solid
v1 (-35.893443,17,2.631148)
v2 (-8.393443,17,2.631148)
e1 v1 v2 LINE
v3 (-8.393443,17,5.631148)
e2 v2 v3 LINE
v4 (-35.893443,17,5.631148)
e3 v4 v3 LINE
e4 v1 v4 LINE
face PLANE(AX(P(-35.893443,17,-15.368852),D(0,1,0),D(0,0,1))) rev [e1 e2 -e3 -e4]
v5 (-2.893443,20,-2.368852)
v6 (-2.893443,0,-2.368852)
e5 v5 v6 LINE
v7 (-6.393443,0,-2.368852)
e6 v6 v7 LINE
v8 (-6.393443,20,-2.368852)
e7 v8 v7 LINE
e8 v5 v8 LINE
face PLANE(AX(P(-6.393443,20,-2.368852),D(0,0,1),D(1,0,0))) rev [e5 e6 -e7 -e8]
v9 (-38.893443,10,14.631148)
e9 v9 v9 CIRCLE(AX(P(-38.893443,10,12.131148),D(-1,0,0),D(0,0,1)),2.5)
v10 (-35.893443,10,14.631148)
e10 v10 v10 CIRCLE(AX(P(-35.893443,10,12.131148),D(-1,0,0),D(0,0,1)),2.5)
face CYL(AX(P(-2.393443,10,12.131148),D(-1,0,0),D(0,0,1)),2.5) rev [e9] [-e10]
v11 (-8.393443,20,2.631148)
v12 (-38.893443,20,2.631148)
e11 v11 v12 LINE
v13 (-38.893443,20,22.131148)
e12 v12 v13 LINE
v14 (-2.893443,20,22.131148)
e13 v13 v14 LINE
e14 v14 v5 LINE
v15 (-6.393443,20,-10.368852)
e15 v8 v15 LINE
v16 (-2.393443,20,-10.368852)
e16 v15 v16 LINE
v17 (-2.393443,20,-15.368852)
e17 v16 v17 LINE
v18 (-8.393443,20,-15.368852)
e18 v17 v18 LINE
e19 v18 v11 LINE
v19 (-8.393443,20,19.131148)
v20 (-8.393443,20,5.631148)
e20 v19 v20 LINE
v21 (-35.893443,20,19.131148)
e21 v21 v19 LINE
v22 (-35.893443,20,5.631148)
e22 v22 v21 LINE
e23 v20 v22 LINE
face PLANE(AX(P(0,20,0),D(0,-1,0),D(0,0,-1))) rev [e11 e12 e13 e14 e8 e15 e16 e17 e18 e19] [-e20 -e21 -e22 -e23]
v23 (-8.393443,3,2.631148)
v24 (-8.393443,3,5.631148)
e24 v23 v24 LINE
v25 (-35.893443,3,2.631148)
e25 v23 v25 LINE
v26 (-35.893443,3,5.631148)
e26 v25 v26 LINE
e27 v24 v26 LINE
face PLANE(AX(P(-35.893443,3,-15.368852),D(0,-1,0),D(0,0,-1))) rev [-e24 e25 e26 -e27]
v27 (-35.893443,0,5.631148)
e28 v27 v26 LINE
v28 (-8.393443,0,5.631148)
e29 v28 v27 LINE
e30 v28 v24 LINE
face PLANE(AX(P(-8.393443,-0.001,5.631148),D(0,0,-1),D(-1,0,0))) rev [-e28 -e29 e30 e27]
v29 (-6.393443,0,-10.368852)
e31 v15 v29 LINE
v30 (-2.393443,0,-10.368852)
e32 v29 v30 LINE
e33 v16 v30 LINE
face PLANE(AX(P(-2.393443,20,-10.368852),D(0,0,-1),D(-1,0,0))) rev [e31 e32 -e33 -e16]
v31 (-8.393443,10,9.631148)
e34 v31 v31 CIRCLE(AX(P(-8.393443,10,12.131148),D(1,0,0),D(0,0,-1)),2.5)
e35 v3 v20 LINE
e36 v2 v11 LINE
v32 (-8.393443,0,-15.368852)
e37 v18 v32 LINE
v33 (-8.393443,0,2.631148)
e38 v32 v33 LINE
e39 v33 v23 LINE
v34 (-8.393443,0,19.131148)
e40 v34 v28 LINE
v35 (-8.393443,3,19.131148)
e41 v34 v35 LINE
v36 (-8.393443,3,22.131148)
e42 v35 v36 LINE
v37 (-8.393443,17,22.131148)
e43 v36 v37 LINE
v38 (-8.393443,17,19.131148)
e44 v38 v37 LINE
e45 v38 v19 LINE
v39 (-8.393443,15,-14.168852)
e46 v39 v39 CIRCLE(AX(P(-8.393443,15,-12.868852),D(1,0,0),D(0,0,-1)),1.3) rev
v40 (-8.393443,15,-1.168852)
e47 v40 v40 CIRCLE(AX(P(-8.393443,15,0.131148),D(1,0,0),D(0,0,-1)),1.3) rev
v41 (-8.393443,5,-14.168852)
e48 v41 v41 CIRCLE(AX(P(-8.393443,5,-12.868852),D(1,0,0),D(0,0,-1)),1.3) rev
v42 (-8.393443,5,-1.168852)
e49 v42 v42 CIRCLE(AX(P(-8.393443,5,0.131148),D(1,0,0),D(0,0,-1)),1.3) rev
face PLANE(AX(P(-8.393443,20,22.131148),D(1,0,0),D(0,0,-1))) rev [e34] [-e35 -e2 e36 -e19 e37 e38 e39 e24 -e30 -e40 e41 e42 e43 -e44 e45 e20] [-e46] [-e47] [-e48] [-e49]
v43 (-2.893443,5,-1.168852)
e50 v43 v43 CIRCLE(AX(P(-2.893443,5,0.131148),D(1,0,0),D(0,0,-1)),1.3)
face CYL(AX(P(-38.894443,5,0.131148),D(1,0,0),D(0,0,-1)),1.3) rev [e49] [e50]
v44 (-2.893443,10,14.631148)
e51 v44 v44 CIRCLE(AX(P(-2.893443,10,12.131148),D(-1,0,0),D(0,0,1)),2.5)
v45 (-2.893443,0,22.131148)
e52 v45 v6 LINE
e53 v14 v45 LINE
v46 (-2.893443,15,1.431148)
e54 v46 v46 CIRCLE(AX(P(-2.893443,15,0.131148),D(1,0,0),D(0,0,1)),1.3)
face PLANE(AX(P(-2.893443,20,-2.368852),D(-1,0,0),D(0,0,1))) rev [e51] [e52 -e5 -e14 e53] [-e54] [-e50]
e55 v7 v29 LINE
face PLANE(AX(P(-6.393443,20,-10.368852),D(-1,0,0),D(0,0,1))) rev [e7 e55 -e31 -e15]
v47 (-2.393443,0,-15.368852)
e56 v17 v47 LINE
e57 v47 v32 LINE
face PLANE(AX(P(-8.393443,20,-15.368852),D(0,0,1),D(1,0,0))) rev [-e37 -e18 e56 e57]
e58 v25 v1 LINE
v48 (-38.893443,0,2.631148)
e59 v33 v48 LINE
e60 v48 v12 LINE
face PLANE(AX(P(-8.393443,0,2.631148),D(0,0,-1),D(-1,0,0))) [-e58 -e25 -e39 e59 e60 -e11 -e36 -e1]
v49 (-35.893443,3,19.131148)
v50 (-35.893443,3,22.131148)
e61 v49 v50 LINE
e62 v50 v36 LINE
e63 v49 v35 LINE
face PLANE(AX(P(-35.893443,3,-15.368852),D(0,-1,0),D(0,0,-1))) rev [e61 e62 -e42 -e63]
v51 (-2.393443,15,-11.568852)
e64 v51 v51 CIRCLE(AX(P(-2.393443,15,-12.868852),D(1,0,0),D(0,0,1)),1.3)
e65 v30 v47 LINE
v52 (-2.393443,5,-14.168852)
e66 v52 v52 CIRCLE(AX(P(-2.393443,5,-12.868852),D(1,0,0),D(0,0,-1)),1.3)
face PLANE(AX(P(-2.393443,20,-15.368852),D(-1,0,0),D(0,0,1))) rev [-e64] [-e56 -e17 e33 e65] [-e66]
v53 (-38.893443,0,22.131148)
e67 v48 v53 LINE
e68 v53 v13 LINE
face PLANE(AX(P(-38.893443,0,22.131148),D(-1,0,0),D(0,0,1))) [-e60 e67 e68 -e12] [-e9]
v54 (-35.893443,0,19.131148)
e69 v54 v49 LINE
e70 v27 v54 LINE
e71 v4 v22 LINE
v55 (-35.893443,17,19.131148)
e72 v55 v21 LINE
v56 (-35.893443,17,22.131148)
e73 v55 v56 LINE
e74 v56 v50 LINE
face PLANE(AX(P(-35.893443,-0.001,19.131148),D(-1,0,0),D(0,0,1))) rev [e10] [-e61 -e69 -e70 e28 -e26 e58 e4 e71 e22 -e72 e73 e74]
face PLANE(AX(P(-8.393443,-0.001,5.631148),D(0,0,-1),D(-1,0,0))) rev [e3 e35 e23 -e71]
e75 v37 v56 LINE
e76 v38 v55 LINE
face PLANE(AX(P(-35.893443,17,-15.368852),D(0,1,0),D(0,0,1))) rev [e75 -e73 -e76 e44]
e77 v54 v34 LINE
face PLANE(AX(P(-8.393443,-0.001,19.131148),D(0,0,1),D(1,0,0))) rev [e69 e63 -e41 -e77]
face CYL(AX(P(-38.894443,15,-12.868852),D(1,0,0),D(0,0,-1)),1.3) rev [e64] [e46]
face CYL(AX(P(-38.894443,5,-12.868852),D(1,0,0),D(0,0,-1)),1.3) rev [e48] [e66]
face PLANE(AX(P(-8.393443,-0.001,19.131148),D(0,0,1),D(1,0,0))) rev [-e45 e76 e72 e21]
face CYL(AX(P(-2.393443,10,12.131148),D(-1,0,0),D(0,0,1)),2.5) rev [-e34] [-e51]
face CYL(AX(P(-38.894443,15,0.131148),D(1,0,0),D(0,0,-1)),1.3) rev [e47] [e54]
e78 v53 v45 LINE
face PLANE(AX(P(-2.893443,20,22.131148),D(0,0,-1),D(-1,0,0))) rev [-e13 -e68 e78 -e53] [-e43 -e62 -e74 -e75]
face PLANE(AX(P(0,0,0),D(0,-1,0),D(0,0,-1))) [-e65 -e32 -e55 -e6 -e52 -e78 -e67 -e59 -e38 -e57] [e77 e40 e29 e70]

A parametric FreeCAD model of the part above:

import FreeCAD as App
import Part
import Sketcher

V = App.Vector

doc = App.newDocument("Part")
body = doc.addObject("PartDesign::Body", "Body")

# Sketch on XZ plane
sketch1 = body.newObject("Sketcher::SketchObject", "Sketch")
sketch1.AttachmentSupport = (doc.getObject("XZ_Plane"), [""])
sketch1.MapMode = "FlatFace"
sketch1.addGeometry(Part.LineSegment(V(-2.893443, 22.131148, 0), V(-2.893443, -2.368852, 0)), False)
sketch1.addGeometry(Part.LineSegment(V(-2.893443, -2.368852, 0), V(-6.393443, -2.368852, 0)), False)
sketch1.addGeometry(Part.LineSegment(V(-6.393443, -2.368852, 0), V(-6.393443, -10.368852, 0)), False)
sketch1.addGeometry(Part.LineSegment(V(-6.393443, -10.368852, 0), V(-2.393443, -10.368852, 0)), False)
sketch1.addGeometry(Part.LineSegment(V(-2.393443, -10.368852, 0), V(-2.393443, -15.368852, 0)), False)
sketch1.addGeometry(Part.LineSegment(V(-2.393443, -15.368852, 0), V(-8.393443, -15.368852, 0)), False)
sketch1.addGeometry(Part.LineSegment(V(-8.393443, -15.368852, 0), V(-8.393443, 22.131148, 0)), False)
sketch1.addGeometry(Part.LineSegment(V(-8.393443, 22.131148, 0), V(-2.893443, 22.131148, 0)), False)
sketch1.addConstraint(Sketcher.Constraint("Coincident", 0, 2, 1, 1))
sketch1.addConstraint(Sketcher.Constraint("Coincident", 1, 2, 2, 1))
sketch1.addConstraint(Sketcher.Constraint("Coincident", 2, 2, 3, 1))
sketch1.addConstraint(Sketcher.Constraint("Coincident", 3, 2, 4, 1))
sketch1.addConstraint(Sketcher.Constraint("Coincident", 4, 2, 5, 1))
sketch1.addConstraint(Sketcher.Constraint("Coincident", 5, 2, 6, 1))
sketch1.addConstraint(Sketcher.Constraint("Coincident", 6, 2, 7, 1))
sketch1.addConstraint(Sketcher.Constraint("Coincident", 7, 2, 0, 1))
sketch1.addConstraint(Sketcher.Constraint("Vertical", 0))
sketch1.addConstraint(Sketcher.Constraint("Horizontal", 1))
sketch1.addConstraint(Sketcher.Constraint("Vertical", 2))
sketch1.addConstraint(Sketcher.Constraint("Horizontal", 3))
sketch1.addConstraint(Sketcher.Constraint("Vertical", 4))
sketch1.addConstraint(Sketcher.Constraint("Horizontal", 5))
sketch1.addConstraint(Sketcher.Constraint("Vertical", 6))
sketch1.addConstraint(Sketcher.Constraint("Horizontal", 7))
sketch1.addConstraint(Sketcher.Constraint("DistanceX", 3, 1, 3, 2, 4.0))
sketch1.addConstraint(Sketcher.Constraint("DistanceX", 5, 2, 5, 1, 6.0))
sketch1.addConstraint(Sketcher.Constraint("DistanceY", 2, 2, 2, 1, 8.0))
sketch1.addConstraint(Sketcher.Constraint("DistanceY", 4, 2, 4, 1, 5.0))
sketch1.addConstraint(Sketcher.Constraint("DistanceX", 1, 2, 1, 1, 3.5))
sketch1.addConstraint(Sketcher.Constraint("DistanceY", 0, 2, 0, 1, 24.5))
sketch1.addConstraint(Sketcher.Constraint("DistanceX", 0, 2, -1, 1, 2.893443))
sketch1.addConstraint(Sketcher.Constraint("DistanceY", 0, 2, -1, 1, 2.368852))
pad1 = body.newObject("PartDesign::Pad", "Pad")
pad1.Profile = sketch1
pad1.Length = 20
pad1.Reversed = True

# Sketch on XZ plane
sketch2 = body.newObject("Sketcher::SketchObject", "Sketch001")
sketch2.AttachmentSupport = (doc.getObject("XZ_Plane"), [""])
sketch2.MapMode = "FlatFace"
sketch2.AttachmentOffset = App.Placement(V(0, 0, -20), App.Rotation())
sketch2.addGeometry(Part.LineSegment(V(-8.393443, 22.131148, 0), V(-8.393443, 2.631148, 0)), False)
sketch2.addGeometry(Part.LineSegment(V(-8.393443, 2.631148, 0), V(-38.893443, 2.631148, 0)), False)
sketch2.addGeometry(Part.LineSegment(V(-38.893443, 2.631148, 0), V(-38.893443, 22.131148, 0)), False)
sketch2.addGeometry(Part.LineSegment(V(-38.893443, 22.131148, 0), V(-8.393443, 22.131148, 0)), False)
sketch2.addConstraint(Sketcher.Constraint("Coincident", 0, 2, 1, 1))
sketch2.addConstraint(Sketcher.Constraint("Coincident", 1, 2, 2, 1))
sketch2.addConstraint(Sketcher.Constraint("Coincident", 2, 2, 3, 1))
sketch2.addConstraint(Sketcher.Constraint("Coincident", 3, 2, 0, 1))
sketch2.addConstraint(Sketcher.Constraint("Vertical", 0))
sketch2.addConstraint(Sketcher.Constraint("Horizontal", 1))
sketch2.addConstraint(Sketcher.Constraint("Vertical", 2))
sketch2.addConstraint(Sketcher.Constraint("Horizontal", 3))
sketch2.addConstraint(Sketcher.Constraint("DistanceX", 1, 2, 1, 1, 30.5))
sketch2.addConstraint(Sketcher.Constraint("DistanceY", 0, 2, 0, 1, 19.5))
sketch2.addConstraint(Sketcher.Constraint("DistanceX", 0, 2, -1, 1, 8.393443))
sketch2.addConstraint(Sketcher.Constraint("DistanceY", -1, 1, 0, 2, 2.631148))
pad2 = body.newObject("PartDesign::Pad", "Pad001")
pad2.Profile = sketch2
pad2.Length = 20

# Sketch on XZ plane
sketch3 = body.newObject("Sketcher::SketchObject", "Sketch002")
sketch3.AttachmentSupport = (doc.getObject("XZ_Plane"), [""])
sketch3.MapMode = "FlatFace"
sketch3.AttachmentOffset = App.Placement(V(0, 0, -20), App.Rotation())
sketch3.addGeometry(Part.LineSegment(V(-8.393443, 19.131148, 0), V(-8.393443, 5.631148, 0)), False)
sketch3.addGeometry(Part.LineSegment(V(-8.393443, 5.631148, 0), V(-35.893443, 5.631148, 0)), False)
sketch3.addGeometry(Part.LineSegment(V(-35.893443, 5.631148, 0), V(-35.893443, 19.131148, 0)), False)
sketch3.addGeometry(Part.LineSegment(V(-35.893443, 19.131148, 0), V(-8.393443, 19.131148, 0)), False)
sketch3.addConstraint(Sketcher.Constraint("Coincident", 0, 2, 1, 1))
sketch3.addConstraint(Sketcher.Constraint("Coincident", 1, 2, 2, 1))
sketch3.addConstraint(Sketcher.Constraint("Coincident", 2, 2, 3, 1))
sketch3.addConstraint(Sketcher.Constraint("Coincident", 3, 2, 0, 1))
sketch3.addConstraint(Sketcher.Constraint("Vertical", 0))
sketch3.addConstraint(Sketcher.Constraint("Horizontal", 1))
sketch3.addConstraint(Sketcher.Constraint("Vertical", 2))
sketch3.addConstraint(Sketcher.Constraint("Horizontal", 3))
sketch3.addConstraint(Sketcher.Constraint("DistanceX", 1, 2, 1, 1, 27.5))
sketch3.addConstraint(Sketcher.Constraint("DistanceY", 0, 2, 0, 1, 13.5))
sketch3.addConstraint(Sketcher.Constraint("DistanceX", 0, 2, -1, 1, 8.393443))
sketch3.addConstraint(Sketcher.Constraint("DistanceY", -1, 1, 0, 2, 5.631148))
pocket1 = body.newObject("PartDesign::Pocket", "Pocket")
pocket1.Profile = sketch3
pocket1.Type = "UpToFirst"
pocket1.Reversed = True

# Sketch on XY plane
sketch4 = body.newObject("Sketcher::SketchObject", "Sketch003")
sketch4.AttachmentSupport = (doc.getObject("XY_Plane"), [""])
sketch4.MapMode = "FlatFace"
sketch4.AttachmentOffset = App.Placement(V(0, 0, 22.131148), App.Rotation())
sketch4.addGeometry(Part.LineSegment(V(-35.893443, 17, 0), V(-35.893443, 3, 0)), False)
sketch4.addGeometry(Part.LineSegment(V(-35.893443, 3, 0), V(-8.393443, 3, 0)), False)
sketch4.addGeometry(Part.LineSegment(V(-8.393443, 3, 0), V(-8.393443, 17, 0)), False)
sketch4.addGeometry(Part.LineSegment(V(-8.393443, 17, 0), V(-35.893443, 17, 0)), False)
sketch4.addConstraint(Sketcher.Constraint("Coincident", 0, 2, 1, 1))
sketch4.addConstraint(Sketcher.Constraint("Coincident", 1, 2, 2, 1))
sketch4.addConstraint(Sketcher.Constraint("Coincident", 2, 2, 3, 1))
sketch4.addConstraint(Sketcher.Constraint("Coincident", 3, 2, 0, 1))
sketch4.addConstraint(Sketcher.Constraint("Vertical", 0))
sketch4.addConstraint(Sketcher.Constraint("Horizontal", 1))
sketch4.addConstraint(Sketcher.Constraint("Vertical", 2))
sketch4.addConstraint(Sketcher.Constraint("Horizontal", 3))
sketch4.addConstraint(Sketcher.Constraint("DistanceY", 0, 2, 0, 1, 14.0))
sketch4.addConstraint(Sketcher.Constraint("DistanceX", 1, 1, 1, 2, 27.5))
sketch4.addConstraint(Sketcher.Constraint("DistanceY", -1, 1, 0, 2, 3.0))
sketch4.addConstraint(Sketcher.Constraint("DistanceX", 0, 2, -1, 1, 35.893443))
pocket2 = body.newObject("PartDesign::Pocket", "Pocket001")
pocket2.Profile = sketch4
pocket2.Type = "ThroughAll"

# Sketch on YZ plane
sketch5 = body.newObject("Sketcher::SketchObject", "Sketch004")
sketch5.AttachmentSupport = (doc.getObject("YZ_Plane"), [""])
sketch5.MapMode = "FlatFace"
sketch5.AttachmentOffset = App.Placement(V(0, 0, -38.893443), App.Rotation())
sketch5.addGeometry(Part.Circle(V(10, 12.131148, 0), V(0, 0, 1), 2.5), False)
sketch5.addConstraint(Sketcher.Constraint("Diameter", 0, 5.0))
sketch5.addConstraint(Sketcher.Constraint("DistanceX", -1, 1, 0, 3, 10.0))
sketch5.addConstraint(Sketcher.Constraint("DistanceY", -1, 1, 0, 3, 12.131148))
pocket3 = body.newObject("PartDesign::Pocket", "Pocket002")
pocket3.Profile = sketch5
pocket3.Type = "ThroughAll"
pocket3.Reversed = True

# Sketch on YZ plane
sketch6 = body.newObject("Sketcher::SketchObject", "Sketch005")
sketch6.AttachmentSupport = (doc.getObject("YZ_Plane"), [""])
sketch6.MapMode = "FlatFace"
sketch6.AttachmentOffset = App.Placement(V(0, 0, -2.393443), App.Rotation())
sketch6.addGeometry(Part.Circle(V(5, -12.868852, 0), V(0, 0, 1), 1.3), False)
sketch6.addConstraint(Sketcher.Constraint("Diameter", 0, 2.6))
sketch6.addConstraint(Sketcher.Constraint("DistanceX", -1, 1, 0, 3, 5.0))
sketch6.addConstraint(Sketcher.Constraint("DistanceY", 0, 3, -1, 1, 12.868852))
pocket4 = body.newObject("PartDesign::Pocket", "Pocket003")
pocket4.Profile = sketch6
pocket4.Type = "UpToFirst"

# Sketch on YZ plane
sketch7 = body.newObject("Sketcher::SketchObject", "Sketch006")
sketch7.AttachmentSupport = (doc.getObject("YZ_Plane"), [""])
sketch7.MapMode = "FlatFace"
sketch7.AttachmentOffset = App.Placement(V(0, 0, -2.393443), App.Rotation())
sketch7.addGeometry(Part.Circle(V(15, -12.868852, 0), V(0, 0, 1), 1.3), False)
sketch7.addConstraint(Sketcher.Constraint("Diameter", 0, 2.6))
sketch7.addConstraint(Sketcher.Constraint("DistanceX", -1, 1, 0, 3, 15.0))
sketch7.addConstraint(Sketcher.Constraint("DistanceY", 0, 3, -1, 1, 12.868852))
pocket5 = body.newObject("PartDesign::Pocket", "Pocket004")
pocket5.Profile = sketch7
pocket5.Type = "UpToFirst"

# Sketch on YZ plane
sketch8 = body.newObject("Sketcher::SketchObject", "Sketch007")
sketch8.AttachmentSupport = (doc.getObject("YZ_Plane"), [""])
sketch8.MapMode = "FlatFace"
sketch8.AttachmentOffset = App.Placement(V(0, 0, -2.893443), App.Rotation())
sketch8.addGeometry(Part.Circle(V(5, 0.131148, 0), V(0, 0, 1), 1.3), False)
sketch8.addConstraint(Sketcher.Constraint("Diameter", 0, 2.6))
sketch8.addConstraint(Sketcher.Constraint("DistanceX", -1, 1, 0, 3, 5.0))
sketch8.addConstraint(Sketcher.Constraint("DistanceY", -1, 1, 0, 3, 0.131148))
pocket6 = body.newObject("PartDesign::Pocket", "Pocket005")
pocket6.Profile = sketch8
pocket6.Type = "UpToFirst"

# Sketch on YZ plane
sketch9 = body.newObject("Sketcher::SketchObject", "Sketch008")
sketch9.AttachmentSupport = (doc.getObject("YZ_Plane"), [""])
sketch9.MapMode = "FlatFace"
sketch9.AttachmentOffset = App.Placement(V(0, 0, -2.893443), App.Rotation())
sketch9.addGeometry(Part.Circle(V(15, 0.131148, 0), V(0, 0, 1), 1.3), False)
sketch9.addConstraint(Sketcher.Constraint("Diameter", 0, 2.6))
sketch9.addConstraint(Sketcher.Constraint("DistanceX", -1, 1, 0, 3, 15.0))
sketch9.addConstraint(Sketcher.Constraint("DistanceY", -1, 1, 0, 3, 0.131148))
pocket7 = body.newObject("PartDesign::Pocket", "Pocket006")
pocket7.Profile = sketch9
pocket7.Type = "UpToFirst"

doc.recompute()
